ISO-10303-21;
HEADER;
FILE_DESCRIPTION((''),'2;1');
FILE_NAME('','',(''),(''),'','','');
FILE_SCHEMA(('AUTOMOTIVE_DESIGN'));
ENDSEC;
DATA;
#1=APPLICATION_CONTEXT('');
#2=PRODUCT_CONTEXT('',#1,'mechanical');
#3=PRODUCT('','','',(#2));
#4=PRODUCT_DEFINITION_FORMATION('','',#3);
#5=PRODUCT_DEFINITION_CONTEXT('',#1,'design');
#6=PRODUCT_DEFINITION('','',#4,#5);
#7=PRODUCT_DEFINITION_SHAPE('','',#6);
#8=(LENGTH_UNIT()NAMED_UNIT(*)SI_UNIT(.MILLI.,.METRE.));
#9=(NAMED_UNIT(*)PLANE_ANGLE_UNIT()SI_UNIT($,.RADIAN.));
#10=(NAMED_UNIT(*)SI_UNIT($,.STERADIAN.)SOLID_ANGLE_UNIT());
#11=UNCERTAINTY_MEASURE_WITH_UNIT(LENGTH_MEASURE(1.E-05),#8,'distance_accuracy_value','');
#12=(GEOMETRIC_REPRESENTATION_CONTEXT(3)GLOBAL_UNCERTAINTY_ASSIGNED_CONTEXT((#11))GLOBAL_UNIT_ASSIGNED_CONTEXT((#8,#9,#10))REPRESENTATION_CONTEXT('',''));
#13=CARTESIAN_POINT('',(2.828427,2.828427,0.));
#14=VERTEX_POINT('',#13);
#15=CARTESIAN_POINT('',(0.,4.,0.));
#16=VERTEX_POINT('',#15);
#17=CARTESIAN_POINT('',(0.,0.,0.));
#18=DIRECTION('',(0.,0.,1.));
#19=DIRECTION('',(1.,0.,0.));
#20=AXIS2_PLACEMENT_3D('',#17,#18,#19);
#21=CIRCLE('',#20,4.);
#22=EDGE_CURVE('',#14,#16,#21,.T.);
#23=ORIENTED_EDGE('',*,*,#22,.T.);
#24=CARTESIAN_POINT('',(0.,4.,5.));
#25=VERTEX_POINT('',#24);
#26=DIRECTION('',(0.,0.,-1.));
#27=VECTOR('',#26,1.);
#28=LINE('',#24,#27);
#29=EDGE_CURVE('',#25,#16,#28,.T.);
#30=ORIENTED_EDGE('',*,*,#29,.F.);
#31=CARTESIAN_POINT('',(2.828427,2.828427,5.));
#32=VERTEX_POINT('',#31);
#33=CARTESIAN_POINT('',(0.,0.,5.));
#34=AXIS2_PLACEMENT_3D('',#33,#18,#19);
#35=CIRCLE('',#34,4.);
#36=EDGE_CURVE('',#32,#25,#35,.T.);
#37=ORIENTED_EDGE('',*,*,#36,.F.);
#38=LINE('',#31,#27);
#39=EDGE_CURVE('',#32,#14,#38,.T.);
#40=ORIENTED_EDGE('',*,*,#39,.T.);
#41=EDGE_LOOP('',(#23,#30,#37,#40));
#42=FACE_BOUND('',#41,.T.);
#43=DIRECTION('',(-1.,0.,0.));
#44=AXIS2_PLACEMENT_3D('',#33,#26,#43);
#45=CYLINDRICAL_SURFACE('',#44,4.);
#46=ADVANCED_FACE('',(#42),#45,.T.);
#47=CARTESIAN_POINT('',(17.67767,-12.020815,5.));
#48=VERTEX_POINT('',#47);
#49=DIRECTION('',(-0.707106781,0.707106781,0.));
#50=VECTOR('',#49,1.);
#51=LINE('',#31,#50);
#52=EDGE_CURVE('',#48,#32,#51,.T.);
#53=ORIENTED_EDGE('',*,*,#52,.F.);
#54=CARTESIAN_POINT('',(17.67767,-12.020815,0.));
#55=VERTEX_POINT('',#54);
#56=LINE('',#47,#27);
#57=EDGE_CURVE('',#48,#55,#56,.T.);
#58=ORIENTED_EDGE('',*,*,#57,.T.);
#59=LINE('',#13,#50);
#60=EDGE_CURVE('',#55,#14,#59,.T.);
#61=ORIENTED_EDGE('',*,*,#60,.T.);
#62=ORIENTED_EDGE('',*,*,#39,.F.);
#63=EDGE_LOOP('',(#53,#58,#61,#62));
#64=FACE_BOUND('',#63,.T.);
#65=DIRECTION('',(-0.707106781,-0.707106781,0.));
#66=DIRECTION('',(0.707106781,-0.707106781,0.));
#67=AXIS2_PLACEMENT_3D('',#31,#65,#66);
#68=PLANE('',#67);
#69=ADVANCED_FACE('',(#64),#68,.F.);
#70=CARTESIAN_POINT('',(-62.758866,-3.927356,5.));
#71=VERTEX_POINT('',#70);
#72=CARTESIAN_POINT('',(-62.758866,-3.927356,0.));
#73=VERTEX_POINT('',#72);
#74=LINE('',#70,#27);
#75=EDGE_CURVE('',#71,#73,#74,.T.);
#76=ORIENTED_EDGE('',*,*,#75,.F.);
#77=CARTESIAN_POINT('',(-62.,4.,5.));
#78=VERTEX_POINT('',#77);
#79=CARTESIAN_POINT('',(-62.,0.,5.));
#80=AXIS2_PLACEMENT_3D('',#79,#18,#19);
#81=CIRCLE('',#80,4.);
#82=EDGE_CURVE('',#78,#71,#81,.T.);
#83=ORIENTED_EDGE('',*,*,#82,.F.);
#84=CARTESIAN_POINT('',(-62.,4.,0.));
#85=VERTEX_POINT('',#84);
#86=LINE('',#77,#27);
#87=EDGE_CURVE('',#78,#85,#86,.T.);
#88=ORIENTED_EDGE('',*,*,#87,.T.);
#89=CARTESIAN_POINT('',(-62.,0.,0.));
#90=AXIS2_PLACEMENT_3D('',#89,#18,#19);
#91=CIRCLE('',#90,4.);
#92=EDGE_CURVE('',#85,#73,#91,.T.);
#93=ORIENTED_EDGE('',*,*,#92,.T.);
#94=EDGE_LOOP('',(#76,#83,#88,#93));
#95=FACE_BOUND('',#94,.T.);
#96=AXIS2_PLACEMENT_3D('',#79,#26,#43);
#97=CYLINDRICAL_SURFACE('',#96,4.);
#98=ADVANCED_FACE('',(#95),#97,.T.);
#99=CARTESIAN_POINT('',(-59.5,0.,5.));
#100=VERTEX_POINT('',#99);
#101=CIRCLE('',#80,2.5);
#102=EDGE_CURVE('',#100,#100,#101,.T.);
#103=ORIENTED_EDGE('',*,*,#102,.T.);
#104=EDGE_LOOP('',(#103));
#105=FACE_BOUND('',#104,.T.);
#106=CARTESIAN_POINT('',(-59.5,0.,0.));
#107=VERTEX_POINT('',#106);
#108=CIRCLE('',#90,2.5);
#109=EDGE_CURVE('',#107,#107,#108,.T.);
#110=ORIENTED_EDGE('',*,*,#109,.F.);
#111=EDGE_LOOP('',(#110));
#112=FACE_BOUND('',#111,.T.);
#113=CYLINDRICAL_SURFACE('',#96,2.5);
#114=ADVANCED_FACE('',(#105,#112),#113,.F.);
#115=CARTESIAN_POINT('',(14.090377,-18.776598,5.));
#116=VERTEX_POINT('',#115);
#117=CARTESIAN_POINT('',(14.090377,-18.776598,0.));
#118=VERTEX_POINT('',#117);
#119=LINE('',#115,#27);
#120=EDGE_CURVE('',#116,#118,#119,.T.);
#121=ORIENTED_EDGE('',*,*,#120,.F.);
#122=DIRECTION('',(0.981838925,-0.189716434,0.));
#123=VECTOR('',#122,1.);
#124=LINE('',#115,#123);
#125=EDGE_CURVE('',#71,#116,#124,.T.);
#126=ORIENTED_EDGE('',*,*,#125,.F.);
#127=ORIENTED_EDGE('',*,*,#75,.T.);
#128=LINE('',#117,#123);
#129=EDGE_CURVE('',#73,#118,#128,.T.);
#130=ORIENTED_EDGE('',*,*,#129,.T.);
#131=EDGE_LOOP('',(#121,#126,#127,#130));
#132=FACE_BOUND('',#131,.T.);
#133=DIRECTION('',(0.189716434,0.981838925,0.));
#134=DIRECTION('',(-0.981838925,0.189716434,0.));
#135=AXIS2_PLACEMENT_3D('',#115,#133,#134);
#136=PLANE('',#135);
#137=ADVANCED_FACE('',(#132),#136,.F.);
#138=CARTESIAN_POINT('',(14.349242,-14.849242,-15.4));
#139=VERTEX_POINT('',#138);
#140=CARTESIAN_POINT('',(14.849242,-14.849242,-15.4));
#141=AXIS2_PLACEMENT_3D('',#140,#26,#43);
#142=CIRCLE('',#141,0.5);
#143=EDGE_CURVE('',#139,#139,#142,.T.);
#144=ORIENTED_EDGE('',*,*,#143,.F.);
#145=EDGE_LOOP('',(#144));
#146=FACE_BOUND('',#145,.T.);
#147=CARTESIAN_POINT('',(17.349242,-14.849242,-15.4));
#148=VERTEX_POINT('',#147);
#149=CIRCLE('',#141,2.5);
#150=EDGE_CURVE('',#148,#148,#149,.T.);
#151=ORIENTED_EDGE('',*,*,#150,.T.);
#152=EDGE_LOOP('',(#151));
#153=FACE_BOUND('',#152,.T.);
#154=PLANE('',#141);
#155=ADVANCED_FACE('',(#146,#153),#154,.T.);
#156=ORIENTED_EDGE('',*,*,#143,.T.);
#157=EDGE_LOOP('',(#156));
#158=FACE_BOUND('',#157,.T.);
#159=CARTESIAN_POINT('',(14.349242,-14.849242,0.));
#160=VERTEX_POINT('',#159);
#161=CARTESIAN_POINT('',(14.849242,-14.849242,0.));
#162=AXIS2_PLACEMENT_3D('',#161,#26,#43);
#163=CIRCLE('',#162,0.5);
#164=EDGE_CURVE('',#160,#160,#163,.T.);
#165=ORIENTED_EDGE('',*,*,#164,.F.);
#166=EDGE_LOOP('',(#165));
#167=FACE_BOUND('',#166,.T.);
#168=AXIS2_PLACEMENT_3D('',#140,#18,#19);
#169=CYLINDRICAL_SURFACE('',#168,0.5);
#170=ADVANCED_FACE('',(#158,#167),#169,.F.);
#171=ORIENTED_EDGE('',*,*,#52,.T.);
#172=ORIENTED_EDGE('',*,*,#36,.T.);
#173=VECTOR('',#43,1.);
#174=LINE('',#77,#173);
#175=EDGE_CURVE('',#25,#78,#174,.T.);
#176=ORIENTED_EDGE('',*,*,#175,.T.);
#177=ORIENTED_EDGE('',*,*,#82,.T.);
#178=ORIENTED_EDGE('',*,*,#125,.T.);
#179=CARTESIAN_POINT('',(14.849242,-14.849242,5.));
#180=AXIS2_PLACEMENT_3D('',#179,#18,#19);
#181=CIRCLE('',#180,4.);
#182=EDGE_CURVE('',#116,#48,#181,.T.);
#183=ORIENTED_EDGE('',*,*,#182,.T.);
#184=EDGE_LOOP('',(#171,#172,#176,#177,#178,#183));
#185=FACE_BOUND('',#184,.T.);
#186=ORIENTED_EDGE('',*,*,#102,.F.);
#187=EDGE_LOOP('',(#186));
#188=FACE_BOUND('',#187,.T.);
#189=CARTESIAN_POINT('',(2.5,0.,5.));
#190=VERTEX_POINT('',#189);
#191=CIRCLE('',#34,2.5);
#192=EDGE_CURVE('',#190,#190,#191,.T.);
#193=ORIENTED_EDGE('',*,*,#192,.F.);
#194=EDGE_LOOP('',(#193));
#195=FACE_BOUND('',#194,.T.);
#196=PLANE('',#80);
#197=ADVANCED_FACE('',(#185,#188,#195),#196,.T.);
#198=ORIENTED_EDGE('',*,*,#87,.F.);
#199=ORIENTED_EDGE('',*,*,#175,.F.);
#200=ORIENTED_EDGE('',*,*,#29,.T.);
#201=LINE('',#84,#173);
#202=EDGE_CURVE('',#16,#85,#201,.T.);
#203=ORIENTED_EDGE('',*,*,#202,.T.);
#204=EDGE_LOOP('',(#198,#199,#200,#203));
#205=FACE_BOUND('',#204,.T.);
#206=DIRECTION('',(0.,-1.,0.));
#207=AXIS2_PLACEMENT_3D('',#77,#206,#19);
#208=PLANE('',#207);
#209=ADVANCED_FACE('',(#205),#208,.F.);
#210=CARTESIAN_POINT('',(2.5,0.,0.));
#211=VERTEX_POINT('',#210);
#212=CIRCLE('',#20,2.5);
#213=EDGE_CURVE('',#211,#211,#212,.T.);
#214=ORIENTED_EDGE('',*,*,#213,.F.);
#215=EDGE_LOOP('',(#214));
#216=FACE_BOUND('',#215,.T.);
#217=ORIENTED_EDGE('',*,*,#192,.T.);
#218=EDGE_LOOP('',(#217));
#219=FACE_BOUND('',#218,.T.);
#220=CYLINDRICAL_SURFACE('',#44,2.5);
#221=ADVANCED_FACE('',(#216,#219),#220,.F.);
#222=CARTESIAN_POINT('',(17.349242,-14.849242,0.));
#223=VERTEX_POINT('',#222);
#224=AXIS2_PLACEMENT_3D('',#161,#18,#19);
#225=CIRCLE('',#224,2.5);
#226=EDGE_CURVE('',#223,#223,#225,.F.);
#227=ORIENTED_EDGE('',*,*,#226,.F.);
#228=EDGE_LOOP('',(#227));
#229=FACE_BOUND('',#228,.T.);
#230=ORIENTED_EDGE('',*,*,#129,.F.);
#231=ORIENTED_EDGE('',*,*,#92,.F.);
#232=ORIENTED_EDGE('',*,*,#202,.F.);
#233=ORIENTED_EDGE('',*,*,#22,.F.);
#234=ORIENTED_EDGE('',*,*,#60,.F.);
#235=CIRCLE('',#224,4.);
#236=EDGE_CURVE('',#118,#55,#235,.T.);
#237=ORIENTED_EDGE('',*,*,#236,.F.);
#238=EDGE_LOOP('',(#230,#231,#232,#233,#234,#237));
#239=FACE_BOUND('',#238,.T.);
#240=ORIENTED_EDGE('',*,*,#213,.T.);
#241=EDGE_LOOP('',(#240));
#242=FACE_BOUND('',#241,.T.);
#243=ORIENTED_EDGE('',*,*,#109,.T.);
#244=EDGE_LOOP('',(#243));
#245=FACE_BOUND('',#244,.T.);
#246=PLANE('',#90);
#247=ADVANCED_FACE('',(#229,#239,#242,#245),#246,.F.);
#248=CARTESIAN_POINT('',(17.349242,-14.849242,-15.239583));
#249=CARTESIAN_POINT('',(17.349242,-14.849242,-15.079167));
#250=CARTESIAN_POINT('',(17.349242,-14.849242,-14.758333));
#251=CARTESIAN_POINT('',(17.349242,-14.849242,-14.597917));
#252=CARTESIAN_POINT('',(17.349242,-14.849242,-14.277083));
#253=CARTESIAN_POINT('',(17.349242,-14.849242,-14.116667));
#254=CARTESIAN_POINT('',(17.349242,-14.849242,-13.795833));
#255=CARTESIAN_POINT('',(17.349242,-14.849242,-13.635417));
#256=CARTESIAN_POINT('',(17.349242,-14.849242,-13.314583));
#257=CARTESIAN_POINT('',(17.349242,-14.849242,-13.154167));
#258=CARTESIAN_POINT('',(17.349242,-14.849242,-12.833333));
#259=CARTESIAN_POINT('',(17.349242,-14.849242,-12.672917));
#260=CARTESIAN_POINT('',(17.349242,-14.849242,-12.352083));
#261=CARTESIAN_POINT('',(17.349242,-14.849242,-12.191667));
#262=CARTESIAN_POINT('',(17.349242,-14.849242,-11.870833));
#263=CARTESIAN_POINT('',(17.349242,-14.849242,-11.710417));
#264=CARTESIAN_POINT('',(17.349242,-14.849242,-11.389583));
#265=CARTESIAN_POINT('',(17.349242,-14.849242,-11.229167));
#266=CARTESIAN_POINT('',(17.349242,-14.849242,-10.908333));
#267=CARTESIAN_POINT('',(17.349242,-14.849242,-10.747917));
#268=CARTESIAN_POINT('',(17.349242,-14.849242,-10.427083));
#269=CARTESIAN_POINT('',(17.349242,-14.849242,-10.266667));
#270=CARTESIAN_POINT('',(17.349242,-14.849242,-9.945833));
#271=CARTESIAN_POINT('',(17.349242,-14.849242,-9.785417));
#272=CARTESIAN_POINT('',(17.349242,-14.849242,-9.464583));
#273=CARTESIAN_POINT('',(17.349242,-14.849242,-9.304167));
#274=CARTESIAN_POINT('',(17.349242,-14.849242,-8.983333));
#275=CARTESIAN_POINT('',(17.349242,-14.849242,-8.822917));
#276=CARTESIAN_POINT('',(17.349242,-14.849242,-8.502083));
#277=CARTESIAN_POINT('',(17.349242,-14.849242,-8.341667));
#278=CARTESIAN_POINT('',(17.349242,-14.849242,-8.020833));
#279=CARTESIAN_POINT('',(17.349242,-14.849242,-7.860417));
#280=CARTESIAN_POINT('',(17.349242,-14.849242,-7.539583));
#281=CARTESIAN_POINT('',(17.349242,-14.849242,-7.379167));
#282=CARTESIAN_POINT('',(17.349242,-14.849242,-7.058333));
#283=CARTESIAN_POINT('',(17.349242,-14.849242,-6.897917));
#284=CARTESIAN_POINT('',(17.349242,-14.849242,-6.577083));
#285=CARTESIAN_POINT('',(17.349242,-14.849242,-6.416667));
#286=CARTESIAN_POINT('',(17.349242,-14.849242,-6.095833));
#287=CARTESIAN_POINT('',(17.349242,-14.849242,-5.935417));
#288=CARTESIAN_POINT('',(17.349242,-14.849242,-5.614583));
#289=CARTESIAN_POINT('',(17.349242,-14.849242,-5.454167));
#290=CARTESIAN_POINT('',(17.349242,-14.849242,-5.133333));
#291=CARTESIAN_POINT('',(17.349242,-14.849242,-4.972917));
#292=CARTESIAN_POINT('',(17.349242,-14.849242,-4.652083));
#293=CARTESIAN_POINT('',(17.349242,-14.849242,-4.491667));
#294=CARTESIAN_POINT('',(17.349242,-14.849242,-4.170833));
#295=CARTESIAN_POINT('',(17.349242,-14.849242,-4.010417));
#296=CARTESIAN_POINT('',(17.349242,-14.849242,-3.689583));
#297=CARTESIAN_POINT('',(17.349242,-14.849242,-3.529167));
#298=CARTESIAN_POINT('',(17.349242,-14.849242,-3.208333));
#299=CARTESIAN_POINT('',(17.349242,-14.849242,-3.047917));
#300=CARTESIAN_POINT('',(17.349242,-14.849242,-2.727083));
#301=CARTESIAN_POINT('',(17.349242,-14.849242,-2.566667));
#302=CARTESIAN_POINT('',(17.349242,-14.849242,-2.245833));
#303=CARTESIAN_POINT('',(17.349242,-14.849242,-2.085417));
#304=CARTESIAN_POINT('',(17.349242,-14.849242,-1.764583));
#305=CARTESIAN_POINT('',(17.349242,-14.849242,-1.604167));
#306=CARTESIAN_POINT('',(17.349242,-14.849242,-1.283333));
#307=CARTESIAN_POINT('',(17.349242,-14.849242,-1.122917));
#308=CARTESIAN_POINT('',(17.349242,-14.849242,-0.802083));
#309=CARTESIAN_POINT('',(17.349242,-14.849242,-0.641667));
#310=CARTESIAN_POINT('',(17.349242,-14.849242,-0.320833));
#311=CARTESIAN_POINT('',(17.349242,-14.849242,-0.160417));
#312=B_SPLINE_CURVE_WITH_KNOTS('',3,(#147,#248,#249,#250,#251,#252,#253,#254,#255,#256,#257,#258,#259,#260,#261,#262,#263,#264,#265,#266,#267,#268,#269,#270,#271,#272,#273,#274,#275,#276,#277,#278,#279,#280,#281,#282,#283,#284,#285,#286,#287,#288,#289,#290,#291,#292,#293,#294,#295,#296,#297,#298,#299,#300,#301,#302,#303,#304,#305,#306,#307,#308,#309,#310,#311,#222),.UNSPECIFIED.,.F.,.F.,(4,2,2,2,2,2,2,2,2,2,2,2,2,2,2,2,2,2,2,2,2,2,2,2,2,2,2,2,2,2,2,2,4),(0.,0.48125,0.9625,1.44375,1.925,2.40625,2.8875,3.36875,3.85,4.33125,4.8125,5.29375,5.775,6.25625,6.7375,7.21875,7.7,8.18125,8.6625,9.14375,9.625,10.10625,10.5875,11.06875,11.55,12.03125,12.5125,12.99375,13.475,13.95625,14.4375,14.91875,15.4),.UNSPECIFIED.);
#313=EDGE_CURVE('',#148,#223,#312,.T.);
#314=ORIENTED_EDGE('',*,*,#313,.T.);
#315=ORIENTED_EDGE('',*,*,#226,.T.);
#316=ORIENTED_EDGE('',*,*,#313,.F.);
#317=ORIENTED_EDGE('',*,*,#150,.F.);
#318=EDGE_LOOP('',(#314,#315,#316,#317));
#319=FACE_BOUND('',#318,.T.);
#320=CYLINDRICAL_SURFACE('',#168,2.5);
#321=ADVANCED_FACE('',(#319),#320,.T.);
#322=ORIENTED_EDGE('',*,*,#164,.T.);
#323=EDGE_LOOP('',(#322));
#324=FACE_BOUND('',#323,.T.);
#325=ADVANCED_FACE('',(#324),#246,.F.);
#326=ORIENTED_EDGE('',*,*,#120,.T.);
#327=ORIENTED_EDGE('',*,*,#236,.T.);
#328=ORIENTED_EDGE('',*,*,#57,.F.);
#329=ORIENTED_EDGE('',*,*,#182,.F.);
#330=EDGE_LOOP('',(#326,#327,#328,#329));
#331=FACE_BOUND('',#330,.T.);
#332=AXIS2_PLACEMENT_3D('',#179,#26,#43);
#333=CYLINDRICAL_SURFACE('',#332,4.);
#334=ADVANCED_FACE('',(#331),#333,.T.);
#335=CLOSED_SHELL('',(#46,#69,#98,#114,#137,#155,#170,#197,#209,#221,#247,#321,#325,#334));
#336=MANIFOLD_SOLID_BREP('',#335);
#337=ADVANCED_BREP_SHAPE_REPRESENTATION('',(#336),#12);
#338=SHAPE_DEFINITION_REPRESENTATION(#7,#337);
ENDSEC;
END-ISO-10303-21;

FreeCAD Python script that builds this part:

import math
import FreeCAD as App
import Part
import Sketcher
Q = App.Units.Quantity

doc = App.newDocument("Part")
body = doc.addObject("PartDesign::Body", "Body")

sketch1 = body.newObject("Sketcher::SketchObject", "Sketch")
sketch1.AttachmentSupport = (doc.getObject("XY_Plane"), [""])
sketch1.MapMode = "FlatFace"
sketch1.addGeometry(Part.LineSegment(App.Vector(0, 4, 0), App.Vector(-62, 4, 0)), False)
sketch1.addGeometry(Part.ArcOfCircle(Part.Circle(App.Vector(-62, 0, 0), App.Vector(0, 0, 1), 4), math.radians(90), math.radians(259)), False)
sketch1.addGeometry(Part.LineSegment(App.Vector(-62.8, -3.9, 0), App.Vector(14.1, -18.8, 0)), False)
sketch1.addGeometry(Part.ArcOfCircle(Part.Circle(App.Vector(14.8, -14.8, 0), App.Vector(0, 0, 1), 4), math.radians(-101), math.radians(45)), False)
sketch1.addGeometry(Part.LineSegment(App.Vector(17.7, -12, 0), App.Vector(2.8, 2.8, 0)), False)
sketch1.addGeometry(Part.ArcOfCircle(Part.Circle(App.Vector(0, 0, 0), App.Vector(0, 0, 1), 4), math.radians(45), math.radians(90)), False)
sketch1.addGeometry(Part.Circle(App.Vector(0, 0, 0), App.Vector(0, 0, 1), 2.5), False)
sketch1.addGeometry(Part.Circle(App.Vector(-62, 0, 0), App.Vector(0, 0, 1), 2.5), False)
sketch1.addConstraint(Sketcher.Constraint("Tangent", 0, 2, 1, 1))
sketch1.addConstraint(Sketcher.Constraint("Tangent", 1, 2, 2, 1))
sketch1.addConstraint(Sketcher.Constraint("Tangent", 2, 2, 3, 1))
sketch1.addConstraint(Sketcher.Constraint("Tangent", 3, 2, 4, 1))
sketch1.addConstraint(Sketcher.Constraint("Tangent", 4, 2, 5, 1))
sketch1.addConstraint(Sketcher.Constraint("Tangent", 5, 2, 0, 1))
sketch1.addConstraint(Sketcher.Constraint("Horizontal", 0))
sketch1.addConstraint(Sketcher.Constraint("Coincident", 5, 3, -1, 1))
sketch1.addConstraint(Sketcher.Constraint("Coincident", 6, 3, -1, 1))
sketch1.addConstraint(Sketcher.Constraint("Coincident", 7, 3, 1, 3))
sketch1.addConstraint(Sketcher.Constraint("Equal", 1, 3))
sketch1.addConstraint(Sketcher.Constraint("Equal", 3, 5))
sketch1.addConstraint(Sketcher.Constraint("Equal", 6, 7))
sketch1.addConstraint(Sketcher.Constraint("Diameter", 6, Q("5 mm")))
sketch1.addConstraint(Sketcher.Constraint("Radius", 1, Q("4 mm")))
sketch1.addConstraint(Sketcher.Constraint("DistanceX", 0, 2, 0, 1, Q("62 mm")))
sketch1.addConstraint(Sketcher.Constraint("Angle", 4, Q("135 deg")))
sketch1.addConstraint(Sketcher.Constraint("Distance", 4, Q("21 mm")))
pad1 = body.newObject("PartDesign::Pad", "Pad")
pad1.Profile = sketch1
pad1.Length = 5

sketch2 = body.newObject("Sketcher::SketchObject", "Sketch001")
sketch2.AttachmentSupport = (doc.getObject("XY_Plane"), [""])
sketch2.MapMode = "FlatFace"
sketch2.addGeometry(Part.Circle(App.Vector(14.8, -14.8, 0), App.Vector(0, 0, 1), 2.5), False)
sketch2.addGeometry(Part.Circle(App.Vector(14.8, -14.8, 0), App.Vector(0, 0, 1), 0.5), False)
sketch2.addConstraint(Sketcher.Constraint("Coincident", 1, 3, 0, 3))
sketch2.addConstraint(Sketcher.Constraint("Diameter", 0, Q("5 mm")))
sketch2.addConstraint(Sketcher.Constraint("Diameter", 1, Q("1 mm")))
sketch2.addConstraint(Sketcher.Constraint("DistanceX", -1, 1, 0, 3, Q("14.849242 mm")))
sketch2.addConstraint(Sketcher.Constraint("DistanceY", 0, 3, -1, 1, Q("14.849242 mm")))
pad2 = body.newObject("PartDesign::Pad", "Pad001")
pad2.Profile = sketch2
pad2.Length = 15.4
pad2.Reversed = True

doc.recompute()
